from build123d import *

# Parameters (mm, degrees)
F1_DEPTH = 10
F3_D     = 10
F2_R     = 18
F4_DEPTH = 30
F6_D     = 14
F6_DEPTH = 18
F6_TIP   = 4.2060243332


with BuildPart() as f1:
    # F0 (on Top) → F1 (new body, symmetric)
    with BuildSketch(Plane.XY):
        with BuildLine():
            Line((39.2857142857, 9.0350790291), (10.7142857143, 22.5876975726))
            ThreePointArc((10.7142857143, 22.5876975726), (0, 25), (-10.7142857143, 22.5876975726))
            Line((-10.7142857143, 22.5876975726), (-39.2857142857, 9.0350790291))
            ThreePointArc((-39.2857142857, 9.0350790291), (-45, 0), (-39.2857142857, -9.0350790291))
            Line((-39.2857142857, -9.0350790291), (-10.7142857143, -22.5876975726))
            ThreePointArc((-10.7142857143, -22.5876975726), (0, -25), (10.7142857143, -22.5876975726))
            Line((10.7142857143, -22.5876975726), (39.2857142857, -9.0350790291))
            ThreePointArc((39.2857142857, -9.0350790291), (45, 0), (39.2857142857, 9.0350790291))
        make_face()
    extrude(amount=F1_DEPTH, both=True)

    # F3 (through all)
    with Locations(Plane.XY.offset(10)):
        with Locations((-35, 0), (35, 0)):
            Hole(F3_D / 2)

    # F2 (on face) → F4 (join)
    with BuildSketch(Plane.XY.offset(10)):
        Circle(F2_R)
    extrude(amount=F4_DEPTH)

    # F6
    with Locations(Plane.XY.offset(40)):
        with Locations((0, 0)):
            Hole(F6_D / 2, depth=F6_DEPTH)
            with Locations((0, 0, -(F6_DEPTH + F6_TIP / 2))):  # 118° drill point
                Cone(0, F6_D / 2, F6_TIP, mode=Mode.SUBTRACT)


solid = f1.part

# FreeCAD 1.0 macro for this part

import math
import FreeCAD as App
import Part
import Sketcher

V = App.Vector
Q = App.Units.Quantity

doc = App.newDocument("Part")
body = doc.addObject("PartDesign::Body", "Body")

# Sketch on XY plane
sketch1 = doc.addObject("Sketcher::SketchObject", "Sketch")
body.addObject(sketch1)
sketch1.AttachmentSupport = (doc.XY_Plane, [""])
sketch1.MapMode = "FlatFace"
sketch1.addGeometry(Part.LineSegment(V(39, 9, 0), V(11, 23, 0)), False)
sketch1.addGeometry(Part.ArcOfCircle(Part.Circle(V(0, 0, 0), V(0, 0, 1), 25), math.radians(65), math.radians(115)), False)
sketch1.addGeometry(Part.LineSegment(V(-11, 23, 0), V(-39, 9, 0)), False)
sketch1.addGeometry(Part.ArcOfCircle(Part.Circle(V(-35, 0, 0), V(0, 0, 1), 10), math.radians(115), math.radians(245)), False)
sketch1.addGeometry(Part.LineSegment(V(-39, -9, 0), V(-11, -23, 0)), False)
sketch1.addGeometry(Part.ArcOfCircle(Part.Circle(V(0, 0, 0), V(0, 0, 1), 25), math.radians(-115), math.radians(-65)), False)
sketch1.addGeometry(Part.LineSegment(V(11, -23, 0), V(39, -9, 0)), False)
sketch1.addGeometry(Part.ArcOfCircle(Part.Circle(V(35, 0, 0), V(0, 0, 1), 10), math.radians(-65), math.radians(65)), False)
sketch1.addConstraint(Sketcher.Constraint("Tangent", 0, 2, 1, 1))
sketch1.addConstraint(Sketcher.Constraint("Tangent", 1, 2, 2, 1))
sketch1.addConstraint(Sketcher.Constraint("Tangent", 2, 2, 3, 1))
sketch1.addConstraint(Sketcher.Constraint("Tangent", 3, 2, 4, 1))
sketch1.addConstraint(Sketcher.Constraint("Tangent", 4, 2, 5, 1))
sketch1.addConstraint(Sketcher.Constraint("Tangent", 5, 2, 6, 1))
sketch1.addConstraint(Sketcher.Constraint("Tangent", 6, 2, 7, 1))
sketch1.addConstraint(Sketcher.Constraint("Tangent", 7, 2, 0, 1))
sketch1.addConstraint(Sketcher.Constraint("Coincident", 1, 3, -1, 1))
sketch1.addConstraint(Sketcher.Constraint("Coincident", 5, 3, -1, 1))
sketch1.addConstraint(Sketcher.Constraint("Equal", 1, 5))
sketch1.addConstraint(Sketcher.Constraint("Equal", 3, 7))
sketch1.addConstraint(Sketcher.Constraint("Symmetric", 3, 3, 7, 3, -1, 1))
sketch1.addConstraint(Sketcher.Constraint("PointOnObject", 3, 3, -1))
sketch1.addConstraint(Sketcher.Constraint("Radius", 1, Q("25 mm")))
sketch1.addConstraint(Sketcher.Constraint("Radius", 3, Q("10 mm")))
sketch1.addConstraint(Sketcher.Constraint("DistanceX", 3, 3, -1, 1, Q("35 mm")))
pad1 = doc.addObject("PartDesign::Pad", "Pad")
body.addObject(pad1)
pad1.Profile = sketch1
pad1.Length = 20
pad1.Midplane = True

# Sketch on XY plane
sketch2 = doc.addObject("Sketcher::SketchObject", "Sketch001")
body.addObject(sketch2)
sketch2.AttachmentSupport = (doc.XY_Plane, [""])
sketch2.MapMode = "FlatFace"
sketch2.AttachmentOffset = App.Placement(V(0, 0, 10), App.Rotation())
sketch2.addGeometry(Part.Circle(V(-35, 0, 0), V(0, 0, 1), 5), False)
sketch2.addGeometry(Part.Circle(V(35, 0, 0), V(0, 0, 1), 5), False)
sketch2.addConstraint(Sketcher.Constraint("Equal", 0, 1))
sketch2.addConstraint(Sketcher.Constraint("Symmetric", 0, 3, 1, 3, -1, 1))
sketch2.addConstraint(Sketcher.Constraint("PointOnObject", 0, 3, -1))
sketch2.addConstraint(Sketcher.Constraint("Diameter", 0, Q("10 mm")))
sketch2.addConstraint(Sketcher.Constraint("DistanceX", 0, 3, -1, 1, Q("35 mm")))
doc.recompute()
hole = doc.addObject("PartDesign::Hole", "Hole")
body.addObject(hole)
hole.Profile = sketch2
hole.ThreadType = "None"
hole.Diameter = 10
hole.DepthType = "ThroughAll"

# Sketch on XY plane
sketch3 = doc.addObject("Sketcher::SketchObject", "Sketch002")
body.addObject(sketch3)
sketch3.AttachmentSupport = (doc.XY_Plane, [""])
sketch3.MapMode = "FlatFace"
sketch3.AttachmentOffset = App.Placement(V(0, 0, 10), App.Rotation())
sketch3.addGeometry(Part.Circle(V(0, 0, 0), V(0, 0, 1), 18), False)
sketch3.addConstraint(Sketcher.Constraint("Coincident", 0, 3, -1, 1))
sketch3.addConstraint(Sketcher.Constraint("Diameter", 0, Q("36 mm")))
pad2 = doc.addObject("PartDesign::Pad", "Pad001")
body.addObject(pad2)
pad2.Profile = sketch3
pad2.Length = 30

# Sketch on XY plane
sketch4 = doc.addObject("Sketcher::SketchObject", "Sketch003")
body.addObject(sketch4)
sketch4.AttachmentSupport = (doc.XY_Plane, [""])
sketch4.MapMode = "FlatFace"
sketch4.AttachmentOffset = App.Placement(V(0, 0, 40), App.Rotation())
sketch4.addGeometry(Part.Circle(V(0, 0, 0), V(0, 0, 1), 7), False)
sketch4.addConstraint(Sketcher.Constraint("Coincident", 0, 3, -1, 1))
sketch4.addConstraint(Sketcher.Constraint("Diameter", 0, Q("14 mm")))
doc.recompute()
hole2 = doc.addObject("PartDesign::Hole", "Hole001")
body.addObject(hole2)
hole2.Profile = sketch4
hole2.ThreadType = "None"
hole2.Diameter = 14
hole2.DepthType = "Dimension"
hole2.Depth = 18
hole2.DrillPoint = "Angled"
hole2.DrillPointAngle = 118

doc.recompute()
